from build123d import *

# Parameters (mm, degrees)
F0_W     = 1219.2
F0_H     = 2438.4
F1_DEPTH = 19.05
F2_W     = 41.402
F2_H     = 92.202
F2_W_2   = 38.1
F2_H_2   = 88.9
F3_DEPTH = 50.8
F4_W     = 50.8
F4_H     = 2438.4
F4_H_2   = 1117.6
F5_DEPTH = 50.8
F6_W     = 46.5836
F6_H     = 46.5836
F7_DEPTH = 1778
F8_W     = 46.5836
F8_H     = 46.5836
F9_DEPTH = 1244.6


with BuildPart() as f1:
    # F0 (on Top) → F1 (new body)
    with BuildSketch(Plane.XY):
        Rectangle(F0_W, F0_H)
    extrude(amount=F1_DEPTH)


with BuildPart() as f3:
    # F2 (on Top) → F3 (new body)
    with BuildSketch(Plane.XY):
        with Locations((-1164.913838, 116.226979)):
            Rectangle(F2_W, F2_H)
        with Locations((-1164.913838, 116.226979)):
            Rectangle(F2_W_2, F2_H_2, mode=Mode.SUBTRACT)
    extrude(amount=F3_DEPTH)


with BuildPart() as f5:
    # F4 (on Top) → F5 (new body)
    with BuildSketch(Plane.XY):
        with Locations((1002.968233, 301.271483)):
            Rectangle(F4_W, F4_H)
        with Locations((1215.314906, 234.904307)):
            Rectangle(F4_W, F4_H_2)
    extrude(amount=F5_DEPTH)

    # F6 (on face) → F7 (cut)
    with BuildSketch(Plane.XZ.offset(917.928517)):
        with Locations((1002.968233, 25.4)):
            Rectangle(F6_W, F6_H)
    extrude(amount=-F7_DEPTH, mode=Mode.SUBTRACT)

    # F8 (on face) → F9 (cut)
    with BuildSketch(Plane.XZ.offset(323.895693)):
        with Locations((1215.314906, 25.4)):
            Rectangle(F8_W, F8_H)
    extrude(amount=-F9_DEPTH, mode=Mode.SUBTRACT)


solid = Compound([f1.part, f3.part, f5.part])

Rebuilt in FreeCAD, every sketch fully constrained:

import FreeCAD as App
import Part
import Sketcher
from FreeCAD import Vector
Q = App.Units.Quantity


def add_polygon(sketch, points):
    """Adds a closed chain of lines whose ends are joined by coincident constraints."""
    first, n = sketch.GeometryCount, len(points)
    for a, b in zip(points, points[1:] + points[:1]):
        sketch.addGeometry(Part.LineSegment(App.Vector(*a, 0), App.Vector(*b, 0)), False)
    for i in range(n):
        sketch.addConstraint(Sketcher.Constraint("Coincident", first + i, 2, first + (i + 1) % n, 1))

doc = App.newDocument("Part")
body = doc.addObject("PartDesign::Body", "Body")

sketch1 = body.newObject("Sketcher::SketchObject", "Sketch")
sketch1.AttachmentSupport = (doc.getObject("XY_Plane"), [""])
sketch1.MapMode = "FlatFace"
add_polygon(sketch1, [(-609.6, 1219.2), (-609.6, -1219.2), (609.6, -1219.2), (609.6, 1219.2)])
sketch1.addConstraint([
    Sketcher.Constraint("Vertical", 0),
    Sketcher.Constraint("Horizontal", 1),
    Sketcher.Constraint("Vertical", 2),
    Sketcher.Constraint("Horizontal", 3),
    Sketcher.Constraint("Symmetric", 0, 2, 2, 2, -1, 1),
    Sketcher.Constraint("DistanceX", 1, 1, 1, 2, Q("48 in")),
    Sketcher.Constraint("DistanceY", 0, 2, 0, 1, Q("96 in")),
])
pad1 = body.newObject("PartDesign::Pad", "Pad")
pad1.Profile = sketch1
pad1.Length = Q("0.75 in")
body2 = doc.addObject("PartDesign::Body", "Body001")

sketch2 = body2.newObject("Sketcher::SketchObject", "Sketch001")
sketch2.AttachmentSupport = (doc.getObject("XY_Plane001"), [""])
sketch2.MapMode = "FlatFace"
add_polygon(sketch2, [(-1185.614838, 162.327979), (-1185.614838, 70.125979), (-1144.212838, 70.125979), (-1144.212838, 162.327979)])
add_polygon(sketch2, [(-1145.863838, 71.776979), (-1183.963838, 71.776979), (-1183.963838, 160.676979), (-1145.863838, 160.676979)])
sketch2.addConstraint([
    Sketcher.Constraint("Vertical", 0),
    Sketcher.Constraint("Horizontal", 1),
    Sketcher.Constraint("Vertical", 2),
    Sketcher.Constraint("Horizontal", 3),
    Sketcher.Constraint("Horizontal", 4),
    Sketcher.Constraint("Vertical", 5),
    Sketcher.Constraint("Horizontal", 6),
    Sketcher.Constraint("Vertical", 7),
    Sketcher.Constraint("DistanceX", 4, 2, 4, 1, Q("1.5 in")),
    Sketcher.Constraint("DistanceY", 5, 1, 5, 2, Q("3.5 in")),
    Sketcher.Constraint("DistanceX", 1, 1, 1, 2, Q("1.63 in")),
    Sketcher.Constraint("DistanceY", 0, 2, 0, 1, Q("3.63 in")),
    Sketcher.Constraint("DistanceX", 0, 2, 4, 2, Q("0.065 in")),
    Sketcher.Constraint("DistanceY", 0, 2, 4, 2, Q("0.065 in")),
    Sketcher.Constraint("DistanceX", 0, 2, -1, 1, 1185.614838),
    Sketcher.Constraint("DistanceY", -1, 1, 0, 2, 70.125979),
])
pad2 = body2.newObject("PartDesign::Pad", "Pad001")
pad2.Profile = sketch2
pad2.Length = Q("2 in")
body3 = doc.addObject("PartDesign::Body", "Body002")
body3.AllowCompound = True

sketch3 = body3.newObject("Sketcher::SketchObject", "Sketch002")
sketch3.AttachmentSupport = (doc.getObject("XY_Plane002"), [""])
sketch3.MapMode = "FlatFace"
add_polygon(sketch3, [(977.568233, 1520.471483), (977.568233, -917.928517), (1028.368233, -917.928517), (1028.368233, 1520.471483)])
add_polygon(sketch3, [(1189.914906, 793.704307), (1189.914906, -323.895693), (1240.714906, -323.895693), (1240.714906, 793.704307)])
sketch3.addConstraint([
    Sketcher.Constraint("Vertical", 0),
    Sketcher.Constraint("Horizontal", 1),
    Sketcher.Constraint("Vertical", 2),
    Sketcher.Constraint("Horizontal", 3),
    Sketcher.Constraint("Vertical", 4),
    Sketcher.Constraint("Horizontal", 5),
    Sketcher.Constraint("Vertical", 6),
    Sketcher.Constraint("Horizontal", 7),
    Sketcher.Constraint("Equal", 3, 5),
    Sketcher.Constraint("DistanceX", 1, 1, 1, 2, Q("2 in")),
    Sketcher.Constraint("DistanceY", 0, 2, 0, 1, Q("96 in")),
    Sketcher.Constraint("DistanceY", 4, 2, 4, 1, Q("44 in")),
    Sketcher.Constraint("DistanceX", -1, 1, 0, 2, 977.568233),
    Sketcher.Constraint("DistanceY", 0, 2, -1, 1, 917.928517),
    Sketcher.Constraint("DistanceX", -1, 1, 4, 2, 1189.914906),
    Sketcher.Constraint("DistanceY", 4, 2, -1, 1, 323.895693),
])
pad3 = body3.newObject("PartDesign::Pad", "Pad002")
pad3.Profile = sketch3
pad3.Length = Q("2 in")

sketch4 = body3.newObject("Sketcher::SketchObject", "Sketch003")
sketch4.AttachmentSupport = (doc.getObject("XZ_Plane002"), [""])
sketch4.MapMode = "FlatFace"
sketch4.AttachmentOffset = App.Placement(Vector(0, 0, 917.928517), App.Rotation())
add_polygon(sketch4, [(979.676433, 48.6918), (979.676433, 2.1082), (1026.260033, 2.1082), (1026.260033, 48.6918)])
sketch4.addConstraint([
    Sketcher.Constraint("Vertical", 0),
    Sketcher.Constraint("Horizontal", 1),
    Sketcher.Constraint("Vertical", 2),
    Sketcher.Constraint("Horizontal", 3),
    Sketcher.Constraint("Equal", 3, 0),
    Sketcher.Constraint("DistanceX", 1, 1, 1, 2, Q("1.834 in")),
    Sketcher.Constraint("DistanceY", -1, 1, 0, 2, Q("0.083 in")),
    Sketcher.Constraint("DistanceX", -1, 1, 0, 2, 979.676433),
])
pocket1 = body3.newObject("PartDesign::Pocket", "Pocket")
pocket1.Profile = sketch4
pocket1.Length = Q("70 in")

sketch5 = body3.newObject("Sketcher::SketchObject", "Sketch004")
sketch5.AttachmentSupport = (doc.getObject("XZ_Plane002"), [""])
sketch5.MapMode = "FlatFace"
sketch5.AttachmentOffset = App.Placement(Vector(0, 0, 323.895693), App.Rotation())
add_polygon(sketch5, [(1192.023106, 48.6918), (1192.023106, 2.1082), (1238.606706, 2.1082), (1238.606706, 48.6918)])
sketch5.addConstraint([
    Sketcher.Constraint("Vertical", 0),
    Sketcher.Constraint("Horizontal", 1),
    Sketcher.Constraint("Vertical", 2),
    Sketcher.Constraint("Horizontal", 3),
    Sketcher.Constraint("Equal", 3, 0),
    Sketcher.Constraint("DistanceX", 1, 1, 1, 2, Q("1.834 in")),
    Sketcher.Constraint("DistanceY", -1, 1, 0, 2, Q("0.083 in")),
    Sketcher.Constraint("DistanceX", -1, 1, 0, 2, 1192.023106),
])
pocket2 = body3.newObject("PartDesign::Pocket", "Pocket001")
pocket2.Profile = sketch5
pocket2.Length = Q("49 in")

doc.recompute()
